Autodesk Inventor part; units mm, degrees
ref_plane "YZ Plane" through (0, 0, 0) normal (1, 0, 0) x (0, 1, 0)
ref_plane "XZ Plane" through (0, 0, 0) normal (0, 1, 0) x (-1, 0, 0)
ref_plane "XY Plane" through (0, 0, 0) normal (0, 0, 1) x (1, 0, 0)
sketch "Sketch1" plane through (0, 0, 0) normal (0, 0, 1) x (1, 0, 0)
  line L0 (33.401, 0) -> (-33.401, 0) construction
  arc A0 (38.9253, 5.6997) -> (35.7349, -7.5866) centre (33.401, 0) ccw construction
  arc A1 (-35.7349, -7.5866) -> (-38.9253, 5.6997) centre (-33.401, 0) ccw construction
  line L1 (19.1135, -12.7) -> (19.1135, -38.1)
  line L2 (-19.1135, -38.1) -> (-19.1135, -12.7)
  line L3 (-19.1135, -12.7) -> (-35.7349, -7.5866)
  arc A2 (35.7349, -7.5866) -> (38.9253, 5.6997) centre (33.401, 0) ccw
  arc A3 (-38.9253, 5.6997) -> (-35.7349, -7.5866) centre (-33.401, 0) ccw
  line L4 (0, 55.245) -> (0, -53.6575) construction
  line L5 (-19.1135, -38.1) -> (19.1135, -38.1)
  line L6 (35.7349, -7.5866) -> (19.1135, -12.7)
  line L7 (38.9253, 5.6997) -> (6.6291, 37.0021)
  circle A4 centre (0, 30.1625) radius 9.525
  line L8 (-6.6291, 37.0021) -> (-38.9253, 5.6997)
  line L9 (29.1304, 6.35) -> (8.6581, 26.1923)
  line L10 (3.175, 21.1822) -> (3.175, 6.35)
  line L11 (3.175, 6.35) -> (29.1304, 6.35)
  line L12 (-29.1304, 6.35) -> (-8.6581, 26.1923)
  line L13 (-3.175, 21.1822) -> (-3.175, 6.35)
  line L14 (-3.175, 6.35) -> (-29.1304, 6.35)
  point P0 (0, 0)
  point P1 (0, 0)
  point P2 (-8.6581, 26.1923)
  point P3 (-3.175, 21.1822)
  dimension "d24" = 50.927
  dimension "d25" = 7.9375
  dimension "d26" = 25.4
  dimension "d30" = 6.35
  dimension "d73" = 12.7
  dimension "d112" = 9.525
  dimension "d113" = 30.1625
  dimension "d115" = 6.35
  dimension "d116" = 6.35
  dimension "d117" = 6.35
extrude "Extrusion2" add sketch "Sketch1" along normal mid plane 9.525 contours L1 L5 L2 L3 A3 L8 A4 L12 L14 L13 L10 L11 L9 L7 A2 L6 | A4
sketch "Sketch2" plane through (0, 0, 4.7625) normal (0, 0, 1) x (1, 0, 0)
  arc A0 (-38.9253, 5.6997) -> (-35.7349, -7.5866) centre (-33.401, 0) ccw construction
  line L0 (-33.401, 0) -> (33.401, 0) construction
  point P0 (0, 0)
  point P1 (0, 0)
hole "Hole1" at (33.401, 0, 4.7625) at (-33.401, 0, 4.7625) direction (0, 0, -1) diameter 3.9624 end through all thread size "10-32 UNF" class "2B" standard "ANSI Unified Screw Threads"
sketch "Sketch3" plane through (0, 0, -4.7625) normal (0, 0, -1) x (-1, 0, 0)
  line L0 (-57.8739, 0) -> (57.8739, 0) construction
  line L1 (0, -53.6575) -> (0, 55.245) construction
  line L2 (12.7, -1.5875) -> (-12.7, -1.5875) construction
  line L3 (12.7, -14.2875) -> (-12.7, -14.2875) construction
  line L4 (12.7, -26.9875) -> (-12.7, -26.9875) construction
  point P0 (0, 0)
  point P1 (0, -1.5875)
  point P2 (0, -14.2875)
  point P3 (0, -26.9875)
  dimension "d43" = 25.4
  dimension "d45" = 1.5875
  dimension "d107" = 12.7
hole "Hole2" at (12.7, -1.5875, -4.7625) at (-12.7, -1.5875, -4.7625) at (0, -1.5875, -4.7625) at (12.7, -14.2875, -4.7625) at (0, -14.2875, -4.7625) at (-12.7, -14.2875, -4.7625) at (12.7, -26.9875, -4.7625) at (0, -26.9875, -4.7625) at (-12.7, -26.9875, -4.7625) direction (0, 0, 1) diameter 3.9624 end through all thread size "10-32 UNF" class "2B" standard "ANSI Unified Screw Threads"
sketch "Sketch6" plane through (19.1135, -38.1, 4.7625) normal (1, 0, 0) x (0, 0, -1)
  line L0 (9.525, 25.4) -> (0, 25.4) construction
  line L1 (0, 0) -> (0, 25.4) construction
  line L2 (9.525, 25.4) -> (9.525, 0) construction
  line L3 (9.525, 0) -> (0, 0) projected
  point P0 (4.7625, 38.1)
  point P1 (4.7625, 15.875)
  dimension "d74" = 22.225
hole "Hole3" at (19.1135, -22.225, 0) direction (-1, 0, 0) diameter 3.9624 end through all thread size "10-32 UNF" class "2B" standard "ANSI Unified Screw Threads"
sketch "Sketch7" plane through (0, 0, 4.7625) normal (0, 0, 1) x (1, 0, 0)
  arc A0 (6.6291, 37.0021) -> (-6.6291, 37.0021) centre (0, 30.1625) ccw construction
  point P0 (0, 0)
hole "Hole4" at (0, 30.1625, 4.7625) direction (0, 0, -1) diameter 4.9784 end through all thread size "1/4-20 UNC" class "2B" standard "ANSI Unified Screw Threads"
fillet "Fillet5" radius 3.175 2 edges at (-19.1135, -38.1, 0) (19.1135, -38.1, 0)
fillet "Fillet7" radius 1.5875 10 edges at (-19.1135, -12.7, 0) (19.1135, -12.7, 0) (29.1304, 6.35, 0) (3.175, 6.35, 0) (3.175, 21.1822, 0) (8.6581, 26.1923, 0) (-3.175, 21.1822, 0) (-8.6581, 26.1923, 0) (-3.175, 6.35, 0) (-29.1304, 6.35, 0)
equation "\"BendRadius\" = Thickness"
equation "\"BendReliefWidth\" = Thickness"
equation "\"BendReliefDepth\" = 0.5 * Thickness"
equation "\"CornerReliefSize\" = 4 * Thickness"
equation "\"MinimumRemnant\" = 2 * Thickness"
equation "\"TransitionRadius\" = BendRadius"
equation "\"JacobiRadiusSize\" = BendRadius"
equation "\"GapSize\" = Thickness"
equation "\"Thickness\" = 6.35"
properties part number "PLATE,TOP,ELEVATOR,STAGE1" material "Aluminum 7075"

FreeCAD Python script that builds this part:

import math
import FreeCAD as App
import Part
import Sketcher

V = App.Vector
Q = App.Units.Quantity


def edges_at(feature, points):
    """Names of the edges that pass closest to the given points."""
    edges = feature.Shape.Edges
    near = lambda p: min(range(len(edges)), key=lambda i: edges[i].distToShape(Part.Vertex(*p))[0])
    return sorted({f"Edge{near(p) + 1}" for p in points})

doc = App.newDocument("Part")
body = doc.addObject("PartDesign::Body", "Body")

# Sketch on XY plane
sketch1 = doc.addObject("Sketcher::SketchObject", "Sketch")
body.addObject(sketch1)
sketch1.AttachmentSupport = (doc.XY_Plane, [""])
sketch1.MapMode = "FlatFace"
sketch1.addGeometry([
    Part.LineSegment(V(19, -38, 0), V(19, -13, 0)),  # 0
    Part.LineSegment(V(19, -13, 0), V(36, -8, 0)),  # 1
    Part.ArcOfCircle(Part.Circle(V(33, 0, 0), V(0, 0, 1), 8), math.radians(-73), math.radians(46)),  # 2
    Part.LineSegment(V(39, 6, 0), V(7, 37, 0)),  # 3
    Part.ArcOfCircle(Part.Circle(V(0, 30, 0), V(0, 0, 1), 10), math.radians(46), math.radians(134)),  # 4
    Part.LineSegment(V(-7, 37, 0), V(-39, 6, 0)),  # 5
    Part.ArcOfCircle(Part.Circle(V(-33, 0, 0), V(0, 0, 1), 8), math.radians(134), math.radians(253)),  # 6
    Part.LineSegment(V(-36, -8, 0), V(-19, -13, 0)),  # 7
    Part.LineSegment(V(-19, -13, 0), V(-19, -38, 0)),  # 8
    Part.LineSegment(V(-19, -38, 0), V(19, -38, 0)),  # 9
    Part.LineSegment(V(-29, 6, 0), V(-9, 26, 0)),  # 10
    Part.ArcOfCircle(Part.Circle(V(0, 30, 0), V(0, 0, 1), 10), math.radians(-155), math.radians(-109)),  # 11
    Part.LineSegment(V(-3, 21, 0), V(-3, 6, 0)),  # 12
    Part.LineSegment(V(-3, 6, 0), V(-29, 6, 0)),  # 13
    Part.LineSegment(V(3, 6, 0), V(3, 21, 0)),  # 14
    Part.ArcOfCircle(Part.Circle(V(0, 30, 0), V(0, 0, 1), 10), math.radians(-71), math.radians(-25)),  # 15
    Part.LineSegment(V(9, 26, 0), V(29, 6, 0)),  # 16
    Part.LineSegment(V(29, 6, 0), V(3, 6, 0)),  # 17
], False)
sketch1.addConstraint([
    Sketcher.Constraint("Coincident", 0, 2, 1, 1),
    Sketcher.Constraint("Tangent", 1, 2, 2, 1),
    Sketcher.Constraint("Tangent", 2, 2, 3, 1),
    Sketcher.Constraint("Tangent", 3, 2, 4, 1),
    Sketcher.Constraint("Tangent", 4, 2, 5, 1),
    Sketcher.Constraint("Tangent", 5, 2, 6, 1),
    Sketcher.Constraint("Tangent", 6, 2, 7, 1),
    Sketcher.Constraint("Coincident", 7, 2, 8, 1),
    Sketcher.Constraint("Coincident", 8, 2, 9, 1),
    Sketcher.Constraint("Coincident", 9, 2, 0, 1),
    Sketcher.Constraint("Coincident", 10, 2, 11, 1),
    Sketcher.Constraint("Coincident", 11, 2, 12, 1),
    Sketcher.Constraint("Coincident", 12, 2, 13, 1),
    Sketcher.Constraint("Coincident", 13, 2, 10, 1),
    Sketcher.Constraint("Coincident", 14, 2, 15, 1),
    Sketcher.Constraint("Coincident", 15, 2, 16, 1),
    Sketcher.Constraint("Coincident", 16, 2, 17, 1),
    Sketcher.Constraint("Coincident", 17, 2, 14, 1),
    Sketcher.Constraint("Vertical", 0),
    Sketcher.Constraint("Vertical", 8),
    Sketcher.Constraint("Horizontal", 9),
    Sketcher.Constraint("Vertical", 12),
    Sketcher.Constraint("Horizontal", 13),
    Sketcher.Constraint("Vertical", 14),
    Sketcher.Constraint("Horizontal", 17),
    Sketcher.Constraint("Coincident", 11, 3, 4, 3),
    Sketcher.Constraint("Coincident", 15, 3, 4, 3),
    Sketcher.Constraint("Equal", 2, 6),
    Sketcher.Constraint("Equal", 4, 11),
    Sketcher.Constraint("Equal", 11, 15),
    Sketcher.Constraint("Symmetric", 2, 3, 6, 3, -1, 1),
    Sketcher.Constraint("Symmetric", 3, 2, 4, 2, -2),
    Sketcher.Constraint("Symmetric", 0, 2, 7, 2, -2),
    Sketcher.Constraint("Symmetric", 13, 2, 16, 2, -2),
    Sketcher.Constraint("Parallel", 5, 10),
    Sketcher.Constraint("Parallel", 3, 16),
    Sketcher.Constraint("Horizontal", 11, 2, 14, 2),
    Sketcher.Constraint("DistanceY", 0, 1, 0, 2, Q("1 in")),
    Sketcher.Constraint("Radius", 2, Q("0.3125 in")),
    Sketcher.Constraint("Radius", 4, Q("0.375 in")),
    Sketcher.Constraint("DistanceY", 0, 2, -1, 1, Q("0.5 in")),
    Sketcher.Constraint("DistanceY", -1, 1, 12, 2, Q("0.25 in")),
    Sketcher.Constraint("DistanceX", 11, 2, 14, 2, Q("0.25 in")),
    Sketcher.Constraint("DistanceY", -1, 1, 4, 3, Q("1.1875 in")),
    Sketcher.Constraint("Angle", 1, Q("17.1 deg")),
    Sketcher.Constraint("DistanceX", 9, 1, 9, 2, Q("1.505 in")),
    Sketcher.Constraint("DistanceX", 15, 2, 16, 2, Q("0.806 in")),
])
pad1 = doc.addObject("PartDesign::Pad", "Pad")
body.addObject(pad1)
pad1.Profile = sketch1
pad1.Length = Q("0.375 in")
pad1.Midplane = True

# Sketch on XY plane
sketch2 = doc.addObject("Sketcher::SketchObject", "Sketch001")
body.addObject(sketch2)
sketch2.AttachmentSupport = (doc.XY_Plane, [""])
sketch2.MapMode = "FlatFace"
sketch2.AttachmentOffset = App.Placement(V(0, 0, 0.1875 * 25.4), App.Rotation())
sketch2.addGeometry([
    Part.Circle(V(33.4, 0, 0), V(0, 0, 1), 2),
    Part.Circle(V(-33.4, 0, 0), V(0, 0, 1), 2),
], False)
sketch2.addConstraint([
    Sketcher.Constraint("Equal", 0, 1),
    Sketcher.Constraint("Symmetric", 0, 3, 1, 3, -1, 1),
    Sketcher.Constraint("PointOnObject", 0, 3, -1),
    Sketcher.Constraint("Diameter", 0, Q("0.156 in")),
    Sketcher.Constraint("DistanceX", 1, 3, 0, 3, Q("2.63 in")),
])
doc.recompute()
hole = doc.addObject("PartDesign::Hole", "Hole")
body.addObject(hole)
hole.Profile = sketch2
hole.ThreadType = "None"
hole.Diameter = Q("0.156 in")
hole.DepthType = "ThroughAll"

# Sketch on XY plane
sketch3 = doc.addObject("Sketcher::SketchObject", "Sketch002")
body.addObject(sketch3)
sketch3.AttachmentSupport = (doc.XY_Plane, [""])
sketch3.MapMode = "FlatFace"
sketch3.AttachmentOffset = App.Placement(V(0, 0, -0.1875 * 25.4), App.Rotation())
sketch3.addGeometry([
    Part.Circle(V(12.7, -1.6, 0), V(0, 0, 1), 2),  # 0
    Part.Circle(V(-12.7, -1.6, 0), V(0, 0, 1), 2),  # 1
    Part.Circle(V(0, -1.6, 0), V(0, 0, 1), 2),  # 2
    Part.Circle(V(12.7, -14.3, 0), V(0, 0, 1), 2),  # 3
    Part.Circle(V(0, -14.3, 0), V(0, 0, 1), 2),  # 4
    Part.Circle(V(-12.7, -14.3, 0), V(0, 0, 1), 2),  # 5
    Part.Circle(V(12.7, -27, 0), V(0, 0, 1), 2),  # 6
    Part.Circle(V(0, -27, 0), V(0, 0, 1), 2),  # 7
    Part.Circle(V(-12.7, -27, 0), V(0, 0, 1), 2),  # 8
], False)
sketch3.addConstraint([
    Sketcher.Constraint("Equal", 0, 1),
    Sketcher.Constraint("Equal", 1, 2),
    Sketcher.Constraint("Equal", 2, 3),
    Sketcher.Constraint("Equal", 3, 4),
    Sketcher.Constraint("Equal", 4, 5),
    Sketcher.Constraint("Equal", 5, 6),
    Sketcher.Constraint("Equal", 6, 7),
    Sketcher.Constraint("Equal", 7, 8),
    Sketcher.Constraint("Symmetric", 0, 3, 1, 3, -2),
    Sketcher.Constraint("Symmetric", 3, 3, 5, 3, -2),
    Sketcher.Constraint("Symmetric", 6, 3, 8, 3, -2),
    Sketcher.Constraint("PointOnObject", 2, 3, -2),
    Sketcher.Constraint("PointOnObject", 4, 3, -2),
    Sketcher.Constraint("PointOnObject", 7, 3, -2),
    Sketcher.Constraint("Horizontal", 1, 3, 2, 3),
    Sketcher.Constraint("Horizontal", 3, 3, 4, 3),
    Sketcher.Constraint("Horizontal", 6, 3, 7, 3),
    Sketcher.Constraint("Vertical", 0, 3, 3, 3),
    Sketcher.Constraint("Vertical", 3, 3, 6, 3),
    Sketcher.Constraint("Diameter", 0, Q("0.156 in")),
    Sketcher.Constraint("DistanceX", 1, 3, 0, 3, Q("1 in")),
    Sketcher.Constraint("DistanceY", 6, 3, 0, 3, Q("1 in")),
    Sketcher.Constraint("DistanceY", 3, 3, 0, 3, Q("0.5 in")),
    Sketcher.Constraint("DistanceY", 0, 3, -1, 1, Q("0.0625 in")),
])
doc.recompute()
hole2 = doc.addObject("PartDesign::Hole", "Hole001")
body.addObject(hole2)
hole2.Profile = sketch3
hole2.ThreadType = "None"
hole2.Diameter = Q("0.156 in")
hole2.DepthType = "ThroughAll"
hole2.Reversed = True

# Sketch on YZ plane
sketch4 = doc.addObject("Sketcher::SketchObject", "Sketch003")
body.addObject(sketch4)
sketch4.AttachmentSupport = (doc.YZ_Plane, [""])
sketch4.MapMode = "FlatFace"
sketch4.AttachmentOffset = App.Placement(V(0, 0, 0.7525 * 25.4), App.Rotation())
sketch4.addGeometry(Part.Circle(V(-22.2, 0, 0), V(0, 0, 1), 2), False)
sketch4.addConstraint([
    Sketcher.Constraint("PointOnObject", 0, 3, -1),
    Sketcher.Constraint("Diameter", 0, Q("0.156 in")),
    Sketcher.Constraint("DistanceX", 0, 3, -1, 1, Q("0.875 in")),
])
doc.recompute()
hole3 = doc.addObject("PartDesign::Hole", "Hole002")
body.addObject(hole3)
hole3.Profile = sketch4
hole3.ThreadType = "None"
hole3.Diameter = Q("0.156 in")
hole3.DepthType = "ThroughAll"

# Sketch on XY plane
sketch5 = doc.addObject("Sketcher::SketchObject", "Sketch004")
body.addObject(sketch5)
sketch5.AttachmentSupport = (doc.XY_Plane, [""])
sketch5.MapMode = "FlatFace"
sketch5.AttachmentOffset = App.Placement(V(0, 0, 0.1875 * 25.4), App.Rotation())
sketch5.addGeometry(Part.Circle(V(0, 30.2, 0), V(0, 0, 1), 2.5), False)
sketch5.addConstraint([
    Sketcher.Constraint("PointOnObject", 0, 3, -2),
    Sketcher.Constraint("Diameter", 0, Q("0.196 in")),
    Sketcher.Constraint("DistanceY", -1, 1, 0, 3, Q("1.1875 in")),
])
doc.recompute()
hole4 = doc.addObject("PartDesign::Hole", "Hole003")
body.addObject(hole4)
hole4.Profile = sketch5
hole4.ThreadType = "None"
hole4.Diameter = Q("0.196 in")
hole4.DepthType = "ThroughAll"
doc.recompute()

fillet = doc.addObject("PartDesign::Fillet", "Fillet")
body.addObject(fillet)
fillet.Base = (hole4, edges_at(hole4, [(-19.113, -38.1, 0), (19.113, -38.1, 0)]))
fillet.Radius = Q("0.125 in")
doc.recompute()

fillet2 = doc.addObject("PartDesign::Fillet", "Fillet001")
body.addObject(fillet2)
fillet2.Base = (fillet, edges_at(fillet, [
    (-19.113, -12.7, 0),
    (19.113, -12.7, 0),
    (29.13, 6.35, 0),
    (3.175, 6.35, 0),
    (3.175, 21.182, 0),
    (8.658, 26.192, 0),
    (-3.175, 21.182, 0),
    (-8.658, 26.192, 0),
    (-3.175, 6.35, 0),
    (-29.13, 6.35, 0),
]))
fillet2.Radius = Q("0.0625 in")

doc.recompute()
